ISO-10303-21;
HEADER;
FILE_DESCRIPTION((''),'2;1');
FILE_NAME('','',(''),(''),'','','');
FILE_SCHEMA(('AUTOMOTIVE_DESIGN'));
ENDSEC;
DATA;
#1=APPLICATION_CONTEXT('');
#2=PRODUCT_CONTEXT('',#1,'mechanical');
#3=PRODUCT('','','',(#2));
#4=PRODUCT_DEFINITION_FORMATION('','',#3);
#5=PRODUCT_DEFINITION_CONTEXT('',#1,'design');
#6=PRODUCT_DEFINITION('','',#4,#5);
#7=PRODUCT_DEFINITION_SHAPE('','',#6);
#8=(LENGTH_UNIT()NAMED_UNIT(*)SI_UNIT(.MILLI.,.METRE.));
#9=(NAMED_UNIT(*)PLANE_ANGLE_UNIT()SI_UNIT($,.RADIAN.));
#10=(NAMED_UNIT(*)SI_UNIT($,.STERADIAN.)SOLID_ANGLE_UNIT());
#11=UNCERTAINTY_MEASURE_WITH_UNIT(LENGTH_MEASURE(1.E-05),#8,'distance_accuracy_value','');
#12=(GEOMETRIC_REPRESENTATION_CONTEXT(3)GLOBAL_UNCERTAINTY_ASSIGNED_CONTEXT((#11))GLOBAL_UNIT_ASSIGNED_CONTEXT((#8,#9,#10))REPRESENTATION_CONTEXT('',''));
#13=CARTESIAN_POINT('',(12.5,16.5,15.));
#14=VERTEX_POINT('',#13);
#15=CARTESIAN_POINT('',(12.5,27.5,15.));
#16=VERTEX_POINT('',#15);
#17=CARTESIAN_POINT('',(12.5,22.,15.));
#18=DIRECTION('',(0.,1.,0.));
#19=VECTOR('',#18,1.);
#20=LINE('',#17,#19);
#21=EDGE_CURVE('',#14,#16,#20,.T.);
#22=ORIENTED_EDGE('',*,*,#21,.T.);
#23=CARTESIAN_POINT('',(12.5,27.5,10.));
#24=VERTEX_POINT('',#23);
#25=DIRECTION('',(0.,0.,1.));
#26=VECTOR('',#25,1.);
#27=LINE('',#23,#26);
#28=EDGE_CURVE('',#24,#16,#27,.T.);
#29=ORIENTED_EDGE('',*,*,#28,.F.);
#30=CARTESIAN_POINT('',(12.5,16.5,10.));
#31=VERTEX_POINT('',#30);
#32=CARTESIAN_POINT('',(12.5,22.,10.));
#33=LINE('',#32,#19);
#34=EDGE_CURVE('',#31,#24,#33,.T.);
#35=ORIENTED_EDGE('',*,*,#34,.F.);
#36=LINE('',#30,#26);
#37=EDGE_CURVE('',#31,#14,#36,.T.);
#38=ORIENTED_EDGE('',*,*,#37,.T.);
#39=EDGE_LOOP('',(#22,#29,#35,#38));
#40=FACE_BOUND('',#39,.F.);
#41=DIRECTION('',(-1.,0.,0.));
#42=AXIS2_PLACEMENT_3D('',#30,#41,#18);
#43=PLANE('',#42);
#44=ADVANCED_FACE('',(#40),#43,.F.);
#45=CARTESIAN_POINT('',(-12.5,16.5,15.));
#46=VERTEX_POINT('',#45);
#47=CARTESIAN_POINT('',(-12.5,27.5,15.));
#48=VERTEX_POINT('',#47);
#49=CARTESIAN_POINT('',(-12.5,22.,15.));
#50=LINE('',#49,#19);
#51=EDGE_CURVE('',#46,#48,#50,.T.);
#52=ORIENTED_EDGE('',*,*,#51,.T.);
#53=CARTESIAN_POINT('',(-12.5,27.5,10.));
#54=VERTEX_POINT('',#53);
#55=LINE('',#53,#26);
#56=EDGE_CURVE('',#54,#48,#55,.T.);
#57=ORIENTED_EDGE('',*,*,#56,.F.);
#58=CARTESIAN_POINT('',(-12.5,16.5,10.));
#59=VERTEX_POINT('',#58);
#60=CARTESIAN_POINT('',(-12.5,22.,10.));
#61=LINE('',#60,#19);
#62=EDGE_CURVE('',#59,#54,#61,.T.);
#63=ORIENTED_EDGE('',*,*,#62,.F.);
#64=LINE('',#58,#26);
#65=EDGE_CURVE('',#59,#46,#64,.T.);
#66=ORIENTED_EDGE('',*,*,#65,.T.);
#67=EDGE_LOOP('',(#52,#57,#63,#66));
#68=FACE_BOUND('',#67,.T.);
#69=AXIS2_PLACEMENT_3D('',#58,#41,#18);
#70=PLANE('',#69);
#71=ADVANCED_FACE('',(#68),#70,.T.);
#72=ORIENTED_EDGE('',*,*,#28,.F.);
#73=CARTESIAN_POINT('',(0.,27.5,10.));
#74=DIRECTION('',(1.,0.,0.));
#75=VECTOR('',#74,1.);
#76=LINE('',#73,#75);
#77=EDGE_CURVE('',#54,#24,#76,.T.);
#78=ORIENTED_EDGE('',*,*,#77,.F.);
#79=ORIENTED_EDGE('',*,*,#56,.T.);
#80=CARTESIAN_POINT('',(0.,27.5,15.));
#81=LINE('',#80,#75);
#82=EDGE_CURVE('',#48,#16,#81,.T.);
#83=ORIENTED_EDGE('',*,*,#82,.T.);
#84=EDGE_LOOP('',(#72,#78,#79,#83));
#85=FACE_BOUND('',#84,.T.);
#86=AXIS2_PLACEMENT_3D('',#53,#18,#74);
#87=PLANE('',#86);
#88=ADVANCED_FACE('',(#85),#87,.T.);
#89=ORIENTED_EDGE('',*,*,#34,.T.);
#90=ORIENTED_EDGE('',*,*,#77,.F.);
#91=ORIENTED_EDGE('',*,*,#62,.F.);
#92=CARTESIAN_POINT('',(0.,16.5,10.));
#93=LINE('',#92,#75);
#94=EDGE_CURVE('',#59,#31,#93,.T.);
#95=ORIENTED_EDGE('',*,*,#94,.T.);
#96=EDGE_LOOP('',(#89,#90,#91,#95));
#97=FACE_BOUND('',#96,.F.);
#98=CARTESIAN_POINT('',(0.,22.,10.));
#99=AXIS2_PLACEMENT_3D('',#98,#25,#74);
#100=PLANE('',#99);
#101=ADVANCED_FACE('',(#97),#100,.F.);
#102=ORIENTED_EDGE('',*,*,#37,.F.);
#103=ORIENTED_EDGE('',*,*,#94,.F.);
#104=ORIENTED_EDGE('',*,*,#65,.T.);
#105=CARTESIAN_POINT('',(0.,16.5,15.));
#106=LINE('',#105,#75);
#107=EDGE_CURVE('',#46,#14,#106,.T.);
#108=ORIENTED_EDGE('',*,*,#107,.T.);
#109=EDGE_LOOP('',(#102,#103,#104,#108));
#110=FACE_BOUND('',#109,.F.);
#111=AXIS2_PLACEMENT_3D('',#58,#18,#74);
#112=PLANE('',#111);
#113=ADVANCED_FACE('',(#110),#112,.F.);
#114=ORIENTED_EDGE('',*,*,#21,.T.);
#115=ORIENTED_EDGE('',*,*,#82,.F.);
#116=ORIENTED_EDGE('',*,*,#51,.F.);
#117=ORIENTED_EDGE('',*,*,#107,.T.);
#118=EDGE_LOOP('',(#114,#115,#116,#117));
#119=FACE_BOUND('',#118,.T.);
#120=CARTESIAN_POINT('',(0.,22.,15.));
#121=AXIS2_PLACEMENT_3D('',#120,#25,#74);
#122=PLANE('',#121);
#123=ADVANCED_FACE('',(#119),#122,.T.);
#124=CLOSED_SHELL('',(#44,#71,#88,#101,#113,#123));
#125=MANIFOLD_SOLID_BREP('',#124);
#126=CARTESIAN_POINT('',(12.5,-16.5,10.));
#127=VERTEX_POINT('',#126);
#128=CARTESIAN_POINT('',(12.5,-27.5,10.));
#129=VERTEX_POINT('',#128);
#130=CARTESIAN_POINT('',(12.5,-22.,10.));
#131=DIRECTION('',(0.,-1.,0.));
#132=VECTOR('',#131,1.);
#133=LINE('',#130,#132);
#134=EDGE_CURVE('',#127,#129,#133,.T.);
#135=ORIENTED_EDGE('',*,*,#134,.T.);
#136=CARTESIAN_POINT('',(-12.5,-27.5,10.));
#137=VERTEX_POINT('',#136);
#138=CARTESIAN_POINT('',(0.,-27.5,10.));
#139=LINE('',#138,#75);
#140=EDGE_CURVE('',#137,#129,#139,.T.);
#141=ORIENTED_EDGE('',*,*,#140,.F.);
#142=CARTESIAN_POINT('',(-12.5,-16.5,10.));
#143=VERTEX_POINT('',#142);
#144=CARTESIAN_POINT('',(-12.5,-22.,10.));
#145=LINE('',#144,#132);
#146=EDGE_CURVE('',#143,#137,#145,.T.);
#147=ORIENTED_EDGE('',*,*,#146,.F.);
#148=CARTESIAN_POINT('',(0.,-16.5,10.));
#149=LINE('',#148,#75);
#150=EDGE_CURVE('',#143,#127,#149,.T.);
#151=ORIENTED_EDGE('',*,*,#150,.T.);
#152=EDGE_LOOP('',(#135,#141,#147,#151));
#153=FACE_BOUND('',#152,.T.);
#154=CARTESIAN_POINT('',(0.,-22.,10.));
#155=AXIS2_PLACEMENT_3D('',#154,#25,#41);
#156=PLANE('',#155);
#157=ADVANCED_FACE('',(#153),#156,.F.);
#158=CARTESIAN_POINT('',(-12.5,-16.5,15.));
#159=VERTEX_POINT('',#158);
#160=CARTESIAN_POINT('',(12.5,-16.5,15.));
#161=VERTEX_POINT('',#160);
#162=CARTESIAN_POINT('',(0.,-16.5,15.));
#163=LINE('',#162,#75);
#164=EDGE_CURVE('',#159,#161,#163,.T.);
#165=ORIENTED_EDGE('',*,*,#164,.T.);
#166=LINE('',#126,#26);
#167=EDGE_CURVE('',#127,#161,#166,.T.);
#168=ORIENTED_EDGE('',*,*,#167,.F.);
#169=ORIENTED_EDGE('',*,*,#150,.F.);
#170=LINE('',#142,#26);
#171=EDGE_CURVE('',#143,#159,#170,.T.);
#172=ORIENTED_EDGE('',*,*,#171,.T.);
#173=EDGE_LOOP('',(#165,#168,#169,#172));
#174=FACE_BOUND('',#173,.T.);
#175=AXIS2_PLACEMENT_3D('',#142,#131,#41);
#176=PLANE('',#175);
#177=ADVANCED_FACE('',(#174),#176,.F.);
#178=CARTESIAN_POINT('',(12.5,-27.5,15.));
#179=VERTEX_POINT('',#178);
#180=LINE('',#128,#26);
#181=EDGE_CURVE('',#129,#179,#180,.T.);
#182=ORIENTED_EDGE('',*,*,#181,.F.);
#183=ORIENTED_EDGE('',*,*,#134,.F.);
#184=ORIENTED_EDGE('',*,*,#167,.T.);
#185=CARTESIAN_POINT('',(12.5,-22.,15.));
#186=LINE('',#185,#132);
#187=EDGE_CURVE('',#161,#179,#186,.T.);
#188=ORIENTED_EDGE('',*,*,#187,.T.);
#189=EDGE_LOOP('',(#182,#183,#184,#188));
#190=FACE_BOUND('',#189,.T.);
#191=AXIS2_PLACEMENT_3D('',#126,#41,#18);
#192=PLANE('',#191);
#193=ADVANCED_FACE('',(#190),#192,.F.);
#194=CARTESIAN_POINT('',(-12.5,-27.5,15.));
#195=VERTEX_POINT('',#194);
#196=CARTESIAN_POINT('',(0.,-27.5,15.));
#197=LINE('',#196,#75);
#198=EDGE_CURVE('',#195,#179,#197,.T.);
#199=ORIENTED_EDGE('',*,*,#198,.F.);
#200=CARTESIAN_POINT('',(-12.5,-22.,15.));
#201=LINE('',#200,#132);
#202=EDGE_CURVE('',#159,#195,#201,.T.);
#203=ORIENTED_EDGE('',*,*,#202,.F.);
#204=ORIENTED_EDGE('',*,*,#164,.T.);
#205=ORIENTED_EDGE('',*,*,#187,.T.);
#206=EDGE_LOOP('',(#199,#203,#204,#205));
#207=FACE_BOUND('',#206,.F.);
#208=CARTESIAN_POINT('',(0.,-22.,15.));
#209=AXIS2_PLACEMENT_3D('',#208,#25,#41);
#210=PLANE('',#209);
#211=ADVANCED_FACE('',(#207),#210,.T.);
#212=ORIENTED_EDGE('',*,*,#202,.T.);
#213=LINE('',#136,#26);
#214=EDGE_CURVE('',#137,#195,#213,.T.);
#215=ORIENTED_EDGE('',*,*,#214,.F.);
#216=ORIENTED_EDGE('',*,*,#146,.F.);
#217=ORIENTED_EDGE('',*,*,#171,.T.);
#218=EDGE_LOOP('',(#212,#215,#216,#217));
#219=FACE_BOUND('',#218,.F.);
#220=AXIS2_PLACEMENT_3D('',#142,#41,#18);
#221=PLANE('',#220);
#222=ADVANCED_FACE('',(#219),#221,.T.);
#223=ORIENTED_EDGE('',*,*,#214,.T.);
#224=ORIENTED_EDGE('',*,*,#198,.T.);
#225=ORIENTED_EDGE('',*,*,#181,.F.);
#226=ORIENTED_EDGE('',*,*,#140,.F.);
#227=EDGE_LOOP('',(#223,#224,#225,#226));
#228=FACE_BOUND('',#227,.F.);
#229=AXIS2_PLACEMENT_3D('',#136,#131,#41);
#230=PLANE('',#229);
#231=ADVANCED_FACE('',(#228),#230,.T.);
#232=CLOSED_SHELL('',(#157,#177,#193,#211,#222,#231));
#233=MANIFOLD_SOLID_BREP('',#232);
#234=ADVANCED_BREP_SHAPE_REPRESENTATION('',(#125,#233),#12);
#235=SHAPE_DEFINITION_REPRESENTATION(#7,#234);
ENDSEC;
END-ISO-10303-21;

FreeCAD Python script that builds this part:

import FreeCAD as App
import Part
import Sketcher
from FreeCAD import Vector


def add_polygon(sketch, points):
    """Adds a closed chain of lines whose ends are joined by coincident constraints."""
    first, n = sketch.GeometryCount, len(points)
    for a, b in zip(points, points[1:] + points[:1]):
        sketch.addGeometry(Part.LineSegment(App.Vector(*a, 0), App.Vector(*b, 0)), False)
    for i in range(n):
        sketch.addConstraint(Sketcher.Constraint("Coincident", first + i, 2, first + (i + 1) % n, 1))

doc = App.newDocument("Part")
params = doc.addObject("Spreadsheet::Sheet", "Params")
for row, (alias, value) in enumerate([
    ("sketch1_width", "25 mm"),
    ("sketch1_height", "11 mm"),
    ("pad1_length", "5 mm"),
    ("sketch2_width", "25 mm"),
    ("sketch2_height", "11 mm"),
    ("pad2_length", "5 mm"),
], start=1):
    params.set(f"A{row}", alias)
    params.set(f"B{row}", "=" + value)
    params.setAlias(f"B{row}", alias)

body = doc.addObject("PartDesign::Body", "Body")

# Sketch on XY plane
sketch1 = body.newObject("Sketcher::SketchObject", "Sketch")
sketch1.AttachmentSupport = (doc.getObject("XY_Plane"), [""])
sketch1.MapMode = "FlatFace"
sketch1.AttachmentOffset = App.Placement(Vector(0, 0, 10), App.Rotation())
add_polygon(sketch1, [(-12.5, 27.5), (-12.5, 16.5), (12.5, 16.5), (12.5, 27.5)])  # lines 0-3
sketch1.addConstraint([
    Sketcher.Constraint("Vertical", 0),
    Sketcher.Constraint("Horizontal", 1),
    Sketcher.Constraint("Vertical", 2),
    Sketcher.Constraint("Horizontal", 3),
    Sketcher.Constraint("DistanceX", 1, 1, 1, 2, 25.0),
    Sketcher.Constraint("DistanceY", 0, 2, 0, 1, 11.0),
    Sketcher.Constraint("DistanceX", 0, 2, -1, 1, 12.5),
    Sketcher.Constraint("DistanceY", -1, 1, 0, 2, 16.5),
])
sketch1.setExpression("Constraints[8]", "Params.sketch1_width")
sketch1.setExpression("Constraints[9]", "Params.sketch1_height")
pad1 = body.newObject("PartDesign::Pad", "Pad")
pad1.Profile = sketch1
pad1.setExpression("Length", "Params.pad1_length")
body2 = doc.addObject("PartDesign::Body", "Body001")
doc.recompute()

mirroring = doc.addObject("Part::Mirroring", "Mirroring")
mirroring.Source = body
mirroring.Base = Vector(0, 0, 0)
mirroring.Normal = Vector(0, 1, 0)
body2.BaseFeature = mirroring
doc.recompute()
body3 = doc.addObject("PartDesign::Body", "Body002")
body3.AllowCompound = True

# Sketch on XY plane
sketch2 = body3.newObject("Sketcher::SketchObject", "Sketch001")
sketch2.AttachmentSupport = (doc.getObject("XY_Plane002"), [""])
sketch2.MapMode = "FlatFace"
sketch2.AttachmentOffset = App.Placement(Vector(0, 0, 10), App.Rotation())
add_polygon(sketch2, [(-12.5, 27.5), (-12.5, 16.5), (12.5, 16.5), (12.5, 27.5)])  # lines 0-3
sketch2.addConstraint([
    Sketcher.Constraint("Vertical", 0),
    Sketcher.Constraint("Horizontal", 1),
    Sketcher.Constraint("Vertical", 2),
    Sketcher.Constraint("Horizontal", 3),
    Sketcher.Constraint("DistanceX", 1, 1, 1, 2, 25.0),
    Sketcher.Constraint("DistanceY", 0, 2, 0, 1, 11.0),
    Sketcher.Constraint("DistanceX", 0, 2, -1, 1, 12.5),
    Sketcher.Constraint("DistanceY", -1, 1, 0, 2, 16.5),
])
sketch2.setExpression("Constraints[8]", "Params.sketch2_width")
sketch2.setExpression("Constraints[9]", "Params.sketch2_height")
pad2 = body3.newObject("PartDesign::Pad", "Pad001")
pad2.Profile = sketch2
pad2.setExpression("Length", "Params.pad2_length")
doc.recompute()

boolean = body3.newObject("PartDesign::Boolean", "Boolean")
boolean.Type = "Fuse"
boolean.addObjects([body2])
mirroring.Visibility = False

doc.recompute()
